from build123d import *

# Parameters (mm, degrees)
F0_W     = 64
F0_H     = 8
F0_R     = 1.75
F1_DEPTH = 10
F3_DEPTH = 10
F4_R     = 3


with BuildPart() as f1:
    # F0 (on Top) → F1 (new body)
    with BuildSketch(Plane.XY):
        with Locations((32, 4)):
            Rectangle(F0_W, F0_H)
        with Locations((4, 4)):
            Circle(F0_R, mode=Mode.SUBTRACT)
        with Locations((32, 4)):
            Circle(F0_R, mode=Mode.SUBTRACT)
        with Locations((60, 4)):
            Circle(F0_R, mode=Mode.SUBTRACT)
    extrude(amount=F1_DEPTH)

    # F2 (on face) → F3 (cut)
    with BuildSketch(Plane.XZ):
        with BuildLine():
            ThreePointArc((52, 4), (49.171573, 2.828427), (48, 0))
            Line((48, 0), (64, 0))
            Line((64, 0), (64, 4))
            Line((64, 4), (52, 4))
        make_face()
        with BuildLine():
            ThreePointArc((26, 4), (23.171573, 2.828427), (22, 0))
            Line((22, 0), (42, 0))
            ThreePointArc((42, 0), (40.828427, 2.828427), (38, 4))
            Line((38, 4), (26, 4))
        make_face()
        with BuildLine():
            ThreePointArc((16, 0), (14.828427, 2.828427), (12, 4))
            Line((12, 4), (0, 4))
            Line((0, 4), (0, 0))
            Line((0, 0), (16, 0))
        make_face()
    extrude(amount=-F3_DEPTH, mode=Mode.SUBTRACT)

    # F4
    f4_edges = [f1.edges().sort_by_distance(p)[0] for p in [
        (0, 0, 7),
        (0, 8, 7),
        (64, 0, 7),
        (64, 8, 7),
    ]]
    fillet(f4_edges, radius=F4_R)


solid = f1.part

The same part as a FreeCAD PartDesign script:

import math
import FreeCAD as App
import Part
import Sketcher
from FreeCAD import Vector


def edges_at(feature, points):
    """Names of the edges that pass closest to the given points."""
    edges = feature.Shape.Edges
    near = lambda p: min(range(len(edges)), key=lambda i: edges[i].distToShape(Part.Vertex(*p))[0])
    return sorted({f"Edge{near(p) + 1}" for p in points})

doc = App.newDocument("Part")
params = doc.addObject("Spreadsheet::Sheet", "Params")
for row, (alias, value) in enumerate([
    ("sketch1_diameter", "3.5 mm"),
    ("sketch1_width", "64 mm"),
    ("sketch1_height", "8 mm"),
    ("pad1_length", "10 mm"),
    ("sketch2_radius", "4 mm"),
    ("sketch2_width", "16 mm"),
    ("pocket1_length", "10 mm"),
    ("fillet_radius", "3 mm"),
], start=1):
    params.set(f"A{row}", alias)
    params.set(f"B{row}", "=" + value)
    params.setAlias(f"B{row}", alias)

body = doc.addObject("PartDesign::Body", "Body")

# Sketch on XY plane
sketch1 = body.newObject("Sketcher::SketchObject", "Sketch")
sketch1.AttachmentSupport = (doc.getObject("XY_Plane"), [""])
sketch1.MapMode = "FlatFace"
sketch1.addGeometry([
    Part.LineSegment(Vector(0, 8, 0), Vector(0, 0, 0)),  # 0
    Part.LineSegment(Vector(0, 0, 0), Vector(64, 0, 0)),  # 1
    Part.LineSegment(Vector(64, 0, 0), Vector(64, 8, 0)),  # 2
    Part.LineSegment(Vector(64, 8, 0), Vector(0, 8, 0)),  # 3
    Part.Circle(Vector(4, 4, 0), Vector(0, 0, 1), 1.75),  # 4
    Part.Circle(Vector(32, 4, 0), Vector(0, 0, 1), 1.75),  # 5
    Part.Circle(Vector(60, 4, 0), Vector(0, 0, 1), 1.75),  # 6
], False)
sketch1.addConstraint([
    Sketcher.Constraint("Coincident", 0, 2, 1, 1),
    Sketcher.Constraint("Coincident", 1, 2, 2, 1),
    Sketcher.Constraint("Coincident", 2, 2, 3, 1),
    Sketcher.Constraint("Coincident", 3, 2, 0, 1),
    Sketcher.Constraint("Vertical", 0),
    Sketcher.Constraint("Horizontal", 1),
    Sketcher.Constraint("Vertical", 2),
    Sketcher.Constraint("Horizontal", 3),
    Sketcher.Constraint("Coincident", 0, 2, -1, 1),
    Sketcher.Constraint("Equal", 4, 5),
    Sketcher.Constraint("Equal", 5, 6),
    Sketcher.Constraint("Horizontal", 4, 3, 5, 3),
    Sketcher.Constraint("Horizontal", 5, 3, 6, 3),
    Sketcher.Constraint("Diameter", 4, 3.5),
    Sketcher.Constraint("DistanceX", 1, 1, 1, 2, 64.0),
    Sketcher.Constraint("DistanceY", 0, 2, 0, 1, 8.0),
    Sketcher.Constraint("DistanceX", -1, 1, 4, 3, 4.0),
    Sketcher.Constraint("DistanceY", -1, 1, 4, 3, 4.0),
    Sketcher.Constraint("DistanceX", -1, 1, 5, 3, 32.0),
    Sketcher.Constraint("DistanceX", -1, 1, 6, 3, 60.0),
])
sketch1.setExpression("Constraints[13]", "Params.sketch1_diameter")
sketch1.setExpression("Constraints[14]", "Params.sketch1_width")
sketch1.setExpression("Constraints[15]", "Params.sketch1_height")
pad1 = body.newObject("PartDesign::Pad", "Pad")
pad1.Profile = sketch1
pad1.setExpression("Length", "Params.pad1_length")

# Sketch on XZ plane
sketch2 = body.newObject("Sketcher::SketchObject", "Sketch001")
sketch2.AttachmentSupport = (doc.getObject("XZ_Plane"), [""])
sketch2.MapMode = "FlatFace"
sketch2.addGeometry([
    Part.ArcOfCircle(Part.Circle(Vector(52, 0, 0), Vector(0, 0, 1), 4), math.radians(90.000006), math.radians(179.999994)),  # 0
    Part.LineSegment(Vector(48, 0, 0), Vector(64, 0, 0)),  # 1
    Part.LineSegment(Vector(64, 0, 0), Vector(64, 4, 0)),  # 2
    Part.LineSegment(Vector(64, 4, 0), Vector(52, 4, 0)),  # 3
    Part.ArcOfCircle(Part.Circle(Vector(26, 0, 0), Vector(0, 0, 1), 4), math.radians(90.000006), math.radians(179.999994)),  # 4
    Part.LineSegment(Vector(22, 0, 0), Vector(42, 0, 0)),  # 5
    Part.ArcOfCircle(Part.Circle(Vector(38, 0, 0), Vector(0, 0, 1), 4), math.radians(0.000006), math.radians(89.999994)),  # 6
    Part.LineSegment(Vector(38, 4, 0), Vector(26, 4, 0)),  # 7
    Part.ArcOfCircle(Part.Circle(Vector(12, 0, 0), Vector(0, 0, 1), 4), math.radians(0.000006), math.radians(89.999994)),  # 8
    Part.LineSegment(Vector(12, 4, 0), Vector(0, 4, 0)),  # 9
    Part.LineSegment(Vector(0, 4, 0), Vector(0, 0, 0)),  # 10
    Part.LineSegment(Vector(0, 0, 0), Vector(16, 0, 0)),  # 11
], False)
sketch2.addConstraint([
    Sketcher.Constraint("Coincident", 0, 2, 1, 1),
    Sketcher.Constraint("Coincident", 1, 2, 2, 1),
    Sketcher.Constraint("Coincident", 2, 2, 3, 1),
    Sketcher.Constraint("Tangent", 3, 2, 0, 1),
    Sketcher.Constraint("Coincident", 4, 2, 5, 1),
    Sketcher.Constraint("Coincident", 5, 2, 6, 1),
    Sketcher.Constraint("Tangent", 6, 2, 7, 1),
    Sketcher.Constraint("Tangent", 7, 2, 4, 1),
    Sketcher.Constraint("Tangent", 8, 2, 9, 1),
    Sketcher.Constraint("Coincident", 9, 2, 10, 1),
    Sketcher.Constraint("Coincident", 10, 2, 11, 1),
    Sketcher.Constraint("Coincident", 11, 2, 8, 1),
    Sketcher.Constraint("Horizontal", 1),
    Sketcher.Constraint("Vertical", 2),
    Sketcher.Constraint("Horizontal", 3),
    Sketcher.Constraint("Horizontal", 5),
    Sketcher.Constraint("Horizontal", 7),
    Sketcher.Constraint("Horizontal", 9),
    Sketcher.Constraint("Vertical", 10),
    Sketcher.Constraint("Horizontal", 11),
    Sketcher.Constraint("Coincident", 10, 2, -1, 1),
    Sketcher.Constraint("Equal", 0, 4),
    Sketcher.Constraint("Equal", 4, 6),
    Sketcher.Constraint("Equal", 6, 8),
    Sketcher.Constraint("PointOnObject", 0, 3, -1),
    Sketcher.Constraint("PointOnObject", 4, 3, -1),
    Sketcher.Constraint("PointOnObject", 8, 3, -1),
    Sketcher.Constraint("PointOnObject", 0, 2, -1),
    Sketcher.Constraint("PointOnObject", 4, 2, -1),
    Sketcher.Constraint("Equal", 3, 7),
    Sketcher.Constraint("Equal", 7, 9),
    Sketcher.Constraint("Radius", 0, 4.0),
    Sketcher.Constraint("DistanceX", 1, 1, 1, 2, 16.0),
    Sketcher.Constraint("DistanceX", -1, 1, 0, 3, 52.0),
    Sketcher.Constraint("DistanceX", -1, 1, 4, 3, 26.0),
])
sketch2.setExpression("Constraints[31]", "Params.sketch2_radius")
sketch2.setExpression("Constraints[32]", "Params.sketch2_width")
pocket1 = body.newObject("PartDesign::Pocket", "Pocket")
pocket1.Profile = sketch2
pocket1.setExpression("Length", "Params.pocket1_length")
doc.recompute()

fillet = body.newObject("PartDesign::Fillet", "Fillet")
fillet.Base = (pocket1, edges_at(pocket1, [
    (0, 0, 7),
    (0, 8, 7),
    (64, 0, 7),
    (64, 8, 7),
]))
fillet.setExpression("Radius", "Params.fillet_radius")

doc.recompute()
